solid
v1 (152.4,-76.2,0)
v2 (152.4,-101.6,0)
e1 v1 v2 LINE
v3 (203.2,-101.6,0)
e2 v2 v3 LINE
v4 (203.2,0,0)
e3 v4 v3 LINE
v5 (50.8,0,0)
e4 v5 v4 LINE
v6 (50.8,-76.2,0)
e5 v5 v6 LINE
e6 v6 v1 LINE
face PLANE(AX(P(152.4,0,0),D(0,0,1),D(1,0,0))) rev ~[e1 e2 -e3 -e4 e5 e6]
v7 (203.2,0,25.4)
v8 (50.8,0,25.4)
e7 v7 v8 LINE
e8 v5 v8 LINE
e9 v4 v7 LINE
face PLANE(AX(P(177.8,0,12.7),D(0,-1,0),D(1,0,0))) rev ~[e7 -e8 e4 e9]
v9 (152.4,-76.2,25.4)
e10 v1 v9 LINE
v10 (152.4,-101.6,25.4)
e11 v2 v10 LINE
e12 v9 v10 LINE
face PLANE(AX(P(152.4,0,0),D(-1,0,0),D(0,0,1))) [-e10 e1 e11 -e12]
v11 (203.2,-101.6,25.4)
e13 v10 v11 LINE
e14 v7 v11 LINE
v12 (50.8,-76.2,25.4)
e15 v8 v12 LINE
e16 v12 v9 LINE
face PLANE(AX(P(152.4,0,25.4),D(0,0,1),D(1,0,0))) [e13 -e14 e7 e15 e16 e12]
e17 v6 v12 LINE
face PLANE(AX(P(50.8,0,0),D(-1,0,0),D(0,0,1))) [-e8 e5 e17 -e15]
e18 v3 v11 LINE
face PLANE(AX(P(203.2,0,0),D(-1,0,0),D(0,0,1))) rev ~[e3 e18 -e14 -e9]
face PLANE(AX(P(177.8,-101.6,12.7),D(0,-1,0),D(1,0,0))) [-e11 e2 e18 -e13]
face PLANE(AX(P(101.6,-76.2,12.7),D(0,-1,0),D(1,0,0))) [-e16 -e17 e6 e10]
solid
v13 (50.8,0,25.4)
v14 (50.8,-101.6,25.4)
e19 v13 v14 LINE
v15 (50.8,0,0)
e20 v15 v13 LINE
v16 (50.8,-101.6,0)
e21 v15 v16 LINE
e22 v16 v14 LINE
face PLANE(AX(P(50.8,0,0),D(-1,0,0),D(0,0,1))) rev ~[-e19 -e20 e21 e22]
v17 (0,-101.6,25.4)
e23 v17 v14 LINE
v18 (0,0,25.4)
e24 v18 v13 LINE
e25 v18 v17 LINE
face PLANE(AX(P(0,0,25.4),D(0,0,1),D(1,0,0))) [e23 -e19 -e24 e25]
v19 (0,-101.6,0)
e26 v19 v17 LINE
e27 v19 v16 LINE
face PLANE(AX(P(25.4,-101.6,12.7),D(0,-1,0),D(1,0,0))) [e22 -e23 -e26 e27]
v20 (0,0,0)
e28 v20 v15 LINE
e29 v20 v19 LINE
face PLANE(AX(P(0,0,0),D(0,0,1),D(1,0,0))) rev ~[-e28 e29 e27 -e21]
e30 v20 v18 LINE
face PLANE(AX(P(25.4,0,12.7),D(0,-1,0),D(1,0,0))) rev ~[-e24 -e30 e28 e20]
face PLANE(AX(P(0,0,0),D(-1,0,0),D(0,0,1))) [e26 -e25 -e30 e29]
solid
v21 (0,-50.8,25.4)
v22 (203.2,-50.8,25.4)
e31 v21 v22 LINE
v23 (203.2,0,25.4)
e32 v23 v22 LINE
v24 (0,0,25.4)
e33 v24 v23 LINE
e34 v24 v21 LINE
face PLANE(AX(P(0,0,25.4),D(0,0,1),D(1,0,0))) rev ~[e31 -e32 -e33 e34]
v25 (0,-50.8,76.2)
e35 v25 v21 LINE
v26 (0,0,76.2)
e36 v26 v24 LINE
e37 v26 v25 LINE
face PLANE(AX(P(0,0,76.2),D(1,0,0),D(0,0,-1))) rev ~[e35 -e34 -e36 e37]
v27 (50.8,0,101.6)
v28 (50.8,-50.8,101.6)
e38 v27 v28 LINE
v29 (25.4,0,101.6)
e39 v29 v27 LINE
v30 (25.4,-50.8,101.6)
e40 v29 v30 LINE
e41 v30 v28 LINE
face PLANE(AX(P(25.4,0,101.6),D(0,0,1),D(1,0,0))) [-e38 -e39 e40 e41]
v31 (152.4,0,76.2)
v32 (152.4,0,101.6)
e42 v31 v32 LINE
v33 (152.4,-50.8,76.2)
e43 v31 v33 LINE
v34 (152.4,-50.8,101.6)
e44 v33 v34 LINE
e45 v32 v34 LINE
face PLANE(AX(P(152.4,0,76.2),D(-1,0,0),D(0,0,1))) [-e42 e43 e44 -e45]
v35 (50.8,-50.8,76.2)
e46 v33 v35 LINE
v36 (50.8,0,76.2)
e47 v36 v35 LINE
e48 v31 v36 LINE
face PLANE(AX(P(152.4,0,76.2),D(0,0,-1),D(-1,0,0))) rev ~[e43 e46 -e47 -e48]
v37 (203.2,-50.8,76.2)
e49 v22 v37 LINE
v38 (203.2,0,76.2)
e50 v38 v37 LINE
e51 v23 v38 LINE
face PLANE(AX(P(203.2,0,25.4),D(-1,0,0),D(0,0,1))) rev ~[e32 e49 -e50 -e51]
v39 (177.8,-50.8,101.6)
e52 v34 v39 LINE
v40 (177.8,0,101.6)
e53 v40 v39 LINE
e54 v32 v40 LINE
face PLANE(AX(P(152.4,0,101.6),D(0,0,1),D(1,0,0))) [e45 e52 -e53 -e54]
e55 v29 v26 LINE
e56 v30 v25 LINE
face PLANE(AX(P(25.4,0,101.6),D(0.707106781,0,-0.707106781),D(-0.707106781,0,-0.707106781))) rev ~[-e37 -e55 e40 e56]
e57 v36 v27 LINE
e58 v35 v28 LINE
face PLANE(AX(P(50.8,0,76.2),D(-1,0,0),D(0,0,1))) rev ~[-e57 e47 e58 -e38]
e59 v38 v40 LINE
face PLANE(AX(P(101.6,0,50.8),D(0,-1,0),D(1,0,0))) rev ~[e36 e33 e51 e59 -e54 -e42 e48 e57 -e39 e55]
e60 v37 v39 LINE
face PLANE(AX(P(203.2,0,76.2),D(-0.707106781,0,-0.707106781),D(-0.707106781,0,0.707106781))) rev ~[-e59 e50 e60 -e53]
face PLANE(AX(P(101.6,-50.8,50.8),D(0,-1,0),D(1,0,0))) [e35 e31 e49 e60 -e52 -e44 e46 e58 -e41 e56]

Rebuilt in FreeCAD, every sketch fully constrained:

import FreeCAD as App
import Part
import Sketcher
Q = App.Units.Quantity

doc = App.newDocument("Part")
body = doc.addObject("PartDesign::Body", "Body")

# Sketch on XZ plane
sketch1 = doc.addObject("Sketcher::SketchObject", "Sketch")
body.addObject(sketch1)
sketch1.AttachmentSupport = (doc.XZ_Plane, [""])
sketch1.MapMode = "FlatFace"
sketch1.addGeometry([
    Part.LineSegment(App.Vector(0, 25, 0), App.Vector(0, 0, 0)),
    Part.LineSegment(App.Vector(0, 0, 0), App.Vector(51, 0, 0)),
    Part.LineSegment(App.Vector(51, 0, 0), App.Vector(51, 25, 0)),
    Part.LineSegment(App.Vector(51, 25, 0), App.Vector(0, 25, 0)),
], False)
sketch1.addConstraint([
    Sketcher.Constraint("Coincident", 0, 2, 1, 1),
    Sketcher.Constraint("Coincident", 1, 2, 2, 1),
    Sketcher.Constraint("Coincident", 2, 2, 3, 1),
    Sketcher.Constraint("Coincident", 3, 2, 0, 1),
    Sketcher.Constraint("Vertical", 0),
    Sketcher.Constraint("Horizontal", 1),
    Sketcher.Constraint("Vertical", 2),
    Sketcher.Constraint("Horizontal", 3),
    Sketcher.Constraint("Coincident", 0, 2, -1, 1),
    Sketcher.Constraint("DistanceX", 1, 1, 1, 2, Q("2 in")),
    Sketcher.Constraint("DistanceY", 0, 2, 0, 1, Q("1 in")),
])
pad1 = doc.addObject("PartDesign::Pad", "Pad")
body.addObject(pad1)
pad1.Profile = sketch1
pad1.Length = Q("4 in")
body2 = doc.addObject("PartDesign::Body", "Body001")

# Sketch on XZ plane
sketch2 = doc.addObject("Sketcher::SketchObject", "Sketch001")
body2.addObject(sketch2)
sketch2.AttachmentSupport = (doc.getObject("XZ_Plane001"), [""])
sketch2.MapMode = "FlatFace"
sketch2.addGeometry([
    Part.LineSegment(App.Vector(51, 25, 0), App.Vector(51, 0, 0)),
    Part.LineSegment(App.Vector(51, 0, 0), App.Vector(152, 0, 0)),
    Part.LineSegment(App.Vector(152, 0, 0), App.Vector(152, 25, 0)),
    Part.LineSegment(App.Vector(152, 25, 0), App.Vector(51, 25, 0)),
], False)
sketch2.addConstraint([
    Sketcher.Constraint("Coincident", 0, 2, 1, 1),
    Sketcher.Constraint("Coincident", 1, 2, 2, 1),
    Sketcher.Constraint("Coincident", 2, 2, 3, 1),
    Sketcher.Constraint("Coincident", 3, 2, 0, 1),
    Sketcher.Constraint("Vertical", 0),
    Sketcher.Constraint("Horizontal", 1),
    Sketcher.Constraint("Vertical", 2),
    Sketcher.Constraint("Horizontal", 3),
    Sketcher.Constraint("PointOnObject", 0, 2, -1),
    Sketcher.Constraint("DistanceX", 1, 1, 1, 2, Q("4 in")),
    Sketcher.Constraint("DistanceY", 0, 2, 0, 1, Q("1 in")),
    Sketcher.Constraint("DistanceX", -1, 1, 0, 2, Q("2 in")),
])
pad2 = doc.addObject("PartDesign::Pad", "Pad001")
body2.addObject(pad2)
pad2.Profile = sketch2
pad2.Length = Q("3 in")

# Sketch on XZ plane
sketch3 = doc.addObject("Sketcher::SketchObject", "Sketch002")
body2.addObject(sketch3)
sketch3.AttachmentSupport = (doc.getObject("XZ_Plane001"), [""])
sketch3.MapMode = "FlatFace"
sketch3.addGeometry([
    Part.LineSegment(App.Vector(152, 25, 0), App.Vector(152, 0, 0)),
    Part.LineSegment(App.Vector(152, 0, 0), App.Vector(203, 0, 0)),
    Part.LineSegment(App.Vector(203, 0, 0), App.Vector(203, 25, 0)),
    Part.LineSegment(App.Vector(203, 25, 0), App.Vector(152, 25, 0)),
], False)
sketch3.addConstraint([
    Sketcher.Constraint("Coincident", 0, 2, 1, 1),
    Sketcher.Constraint("Coincident", 1, 2, 2, 1),
    Sketcher.Constraint("Coincident", 2, 2, 3, 1),
    Sketcher.Constraint("Coincident", 3, 2, 0, 1),
    Sketcher.Constraint("Vertical", 0),
    Sketcher.Constraint("Horizontal", 1),
    Sketcher.Constraint("Vertical", 2),
    Sketcher.Constraint("Horizontal", 3),
    Sketcher.Constraint("PointOnObject", 0, 2, -1),
    Sketcher.Constraint("DistanceX", 1, 1, 1, 2, Q("2 in")),
    Sketcher.Constraint("DistanceY", 0, 2, 0, 1, Q("1 in")),
    Sketcher.Constraint("DistanceX", -1, 1, 0, 2, Q("6 in")),
])
pad3 = doc.addObject("PartDesign::Pad", "Pad002")
body2.addObject(pad3)
pad3.Profile = sketch3
pad3.Length = Q("4 in")
body3 = doc.addObject("PartDesign::Body", "Body002")

# Sketch on XZ plane
sketch4 = doc.addObject("Sketcher::SketchObject", "Sketch003")
body3.addObject(sketch4)
sketch4.AttachmentSupport = (doc.getObject("XZ_Plane002"), [""])
sketch4.MapMode = "FlatFace"
sketch4.addGeometry([
    Part.LineSegment(App.Vector(0, 76, 0), App.Vector(0, 25, 0)),  # 0
    Part.LineSegment(App.Vector(0, 25, 0), App.Vector(203, 25, 0)),  # 1
    Part.LineSegment(App.Vector(203, 25, 0), App.Vector(203, 76, 0)),  # 2
    Part.LineSegment(App.Vector(203, 76, 0), App.Vector(178, 102, 0)),  # 3
    Part.LineSegment(App.Vector(178, 102, 0), App.Vector(152, 102, 0)),  # 4
    Part.LineSegment(App.Vector(152, 102, 0), App.Vector(152, 76, 0)),  # 5
    Part.LineSegment(App.Vector(152, 76, 0), App.Vector(51, 76, 0)),  # 6
    Part.LineSegment(App.Vector(51, 76, 0), App.Vector(51, 102, 0)),  # 7
    Part.LineSegment(App.Vector(51, 102, 0), App.Vector(25, 102, 0)),  # 8
    Part.LineSegment(App.Vector(25, 102, 0), App.Vector(0, 76, 0)),  # 9
], False)
sketch4.addConstraint([
    Sketcher.Constraint("Coincident", 0, 2, 1, 1),
    Sketcher.Constraint("Coincident", 1, 2, 2, 1),
    Sketcher.Constraint("Coincident", 2, 2, 3, 1),
    Sketcher.Constraint("Coincident", 3, 2, 4, 1),
    Sketcher.Constraint("Coincident", 4, 2, 5, 1),
    Sketcher.Constraint("Coincident", 5, 2, 6, 1),
    Sketcher.Constraint("Coincident", 6, 2, 7, 1),
    Sketcher.Constraint("Coincident", 7, 2, 8, 1),
    Sketcher.Constraint("Coincident", 8, 2, 9, 1),
    Sketcher.Constraint("Coincident", 9, 2, 0, 1),
    Sketcher.Constraint("Vertical", 0),
    Sketcher.Constraint("Horizontal", 1),
    Sketcher.Constraint("Vertical", 2),
    Sketcher.Constraint("Horizontal", 4),
    Sketcher.Constraint("Vertical", 5),
    Sketcher.Constraint("Horizontal", 6),
    Sketcher.Constraint("Vertical", 7),
    Sketcher.Constraint("Horizontal", 8),
    Sketcher.Constraint("PointOnObject", 0, 2, -2),
    Sketcher.Constraint("Perpendicular", 3, 9),
    Sketcher.Constraint("Horizontal", 2, 2, 5, 2),
    Sketcher.Constraint("Horizontal", 4, 2, 7, 2),
    Sketcher.Constraint("Horizontal", 6, 2, 9, 2),
    Sketcher.Constraint("Equal", 4, 8),
    Sketcher.Constraint("Equal", 8, 5),
    Sketcher.Constraint("Equal", 3, 9),
    Sketcher.Constraint("DistanceX", 1, 1, 1, 2, Q("8 in")),
    Sketcher.Constraint("DistanceX", 4, 2, 4, 1, Q("1 in")),
    Sketcher.Constraint("DistanceY", 0, 2, 0, 1, Q("2 in")),
    Sketcher.Constraint("DistanceY", -1, 1, 0, 2, Q("1 in")),
])
pad4 = doc.addObject("PartDesign::Pad", "Pad003")
body3.addObject(pad4)
pad4.Profile = sketch4
pad4.Length = Q("2 in")

doc.recompute()
